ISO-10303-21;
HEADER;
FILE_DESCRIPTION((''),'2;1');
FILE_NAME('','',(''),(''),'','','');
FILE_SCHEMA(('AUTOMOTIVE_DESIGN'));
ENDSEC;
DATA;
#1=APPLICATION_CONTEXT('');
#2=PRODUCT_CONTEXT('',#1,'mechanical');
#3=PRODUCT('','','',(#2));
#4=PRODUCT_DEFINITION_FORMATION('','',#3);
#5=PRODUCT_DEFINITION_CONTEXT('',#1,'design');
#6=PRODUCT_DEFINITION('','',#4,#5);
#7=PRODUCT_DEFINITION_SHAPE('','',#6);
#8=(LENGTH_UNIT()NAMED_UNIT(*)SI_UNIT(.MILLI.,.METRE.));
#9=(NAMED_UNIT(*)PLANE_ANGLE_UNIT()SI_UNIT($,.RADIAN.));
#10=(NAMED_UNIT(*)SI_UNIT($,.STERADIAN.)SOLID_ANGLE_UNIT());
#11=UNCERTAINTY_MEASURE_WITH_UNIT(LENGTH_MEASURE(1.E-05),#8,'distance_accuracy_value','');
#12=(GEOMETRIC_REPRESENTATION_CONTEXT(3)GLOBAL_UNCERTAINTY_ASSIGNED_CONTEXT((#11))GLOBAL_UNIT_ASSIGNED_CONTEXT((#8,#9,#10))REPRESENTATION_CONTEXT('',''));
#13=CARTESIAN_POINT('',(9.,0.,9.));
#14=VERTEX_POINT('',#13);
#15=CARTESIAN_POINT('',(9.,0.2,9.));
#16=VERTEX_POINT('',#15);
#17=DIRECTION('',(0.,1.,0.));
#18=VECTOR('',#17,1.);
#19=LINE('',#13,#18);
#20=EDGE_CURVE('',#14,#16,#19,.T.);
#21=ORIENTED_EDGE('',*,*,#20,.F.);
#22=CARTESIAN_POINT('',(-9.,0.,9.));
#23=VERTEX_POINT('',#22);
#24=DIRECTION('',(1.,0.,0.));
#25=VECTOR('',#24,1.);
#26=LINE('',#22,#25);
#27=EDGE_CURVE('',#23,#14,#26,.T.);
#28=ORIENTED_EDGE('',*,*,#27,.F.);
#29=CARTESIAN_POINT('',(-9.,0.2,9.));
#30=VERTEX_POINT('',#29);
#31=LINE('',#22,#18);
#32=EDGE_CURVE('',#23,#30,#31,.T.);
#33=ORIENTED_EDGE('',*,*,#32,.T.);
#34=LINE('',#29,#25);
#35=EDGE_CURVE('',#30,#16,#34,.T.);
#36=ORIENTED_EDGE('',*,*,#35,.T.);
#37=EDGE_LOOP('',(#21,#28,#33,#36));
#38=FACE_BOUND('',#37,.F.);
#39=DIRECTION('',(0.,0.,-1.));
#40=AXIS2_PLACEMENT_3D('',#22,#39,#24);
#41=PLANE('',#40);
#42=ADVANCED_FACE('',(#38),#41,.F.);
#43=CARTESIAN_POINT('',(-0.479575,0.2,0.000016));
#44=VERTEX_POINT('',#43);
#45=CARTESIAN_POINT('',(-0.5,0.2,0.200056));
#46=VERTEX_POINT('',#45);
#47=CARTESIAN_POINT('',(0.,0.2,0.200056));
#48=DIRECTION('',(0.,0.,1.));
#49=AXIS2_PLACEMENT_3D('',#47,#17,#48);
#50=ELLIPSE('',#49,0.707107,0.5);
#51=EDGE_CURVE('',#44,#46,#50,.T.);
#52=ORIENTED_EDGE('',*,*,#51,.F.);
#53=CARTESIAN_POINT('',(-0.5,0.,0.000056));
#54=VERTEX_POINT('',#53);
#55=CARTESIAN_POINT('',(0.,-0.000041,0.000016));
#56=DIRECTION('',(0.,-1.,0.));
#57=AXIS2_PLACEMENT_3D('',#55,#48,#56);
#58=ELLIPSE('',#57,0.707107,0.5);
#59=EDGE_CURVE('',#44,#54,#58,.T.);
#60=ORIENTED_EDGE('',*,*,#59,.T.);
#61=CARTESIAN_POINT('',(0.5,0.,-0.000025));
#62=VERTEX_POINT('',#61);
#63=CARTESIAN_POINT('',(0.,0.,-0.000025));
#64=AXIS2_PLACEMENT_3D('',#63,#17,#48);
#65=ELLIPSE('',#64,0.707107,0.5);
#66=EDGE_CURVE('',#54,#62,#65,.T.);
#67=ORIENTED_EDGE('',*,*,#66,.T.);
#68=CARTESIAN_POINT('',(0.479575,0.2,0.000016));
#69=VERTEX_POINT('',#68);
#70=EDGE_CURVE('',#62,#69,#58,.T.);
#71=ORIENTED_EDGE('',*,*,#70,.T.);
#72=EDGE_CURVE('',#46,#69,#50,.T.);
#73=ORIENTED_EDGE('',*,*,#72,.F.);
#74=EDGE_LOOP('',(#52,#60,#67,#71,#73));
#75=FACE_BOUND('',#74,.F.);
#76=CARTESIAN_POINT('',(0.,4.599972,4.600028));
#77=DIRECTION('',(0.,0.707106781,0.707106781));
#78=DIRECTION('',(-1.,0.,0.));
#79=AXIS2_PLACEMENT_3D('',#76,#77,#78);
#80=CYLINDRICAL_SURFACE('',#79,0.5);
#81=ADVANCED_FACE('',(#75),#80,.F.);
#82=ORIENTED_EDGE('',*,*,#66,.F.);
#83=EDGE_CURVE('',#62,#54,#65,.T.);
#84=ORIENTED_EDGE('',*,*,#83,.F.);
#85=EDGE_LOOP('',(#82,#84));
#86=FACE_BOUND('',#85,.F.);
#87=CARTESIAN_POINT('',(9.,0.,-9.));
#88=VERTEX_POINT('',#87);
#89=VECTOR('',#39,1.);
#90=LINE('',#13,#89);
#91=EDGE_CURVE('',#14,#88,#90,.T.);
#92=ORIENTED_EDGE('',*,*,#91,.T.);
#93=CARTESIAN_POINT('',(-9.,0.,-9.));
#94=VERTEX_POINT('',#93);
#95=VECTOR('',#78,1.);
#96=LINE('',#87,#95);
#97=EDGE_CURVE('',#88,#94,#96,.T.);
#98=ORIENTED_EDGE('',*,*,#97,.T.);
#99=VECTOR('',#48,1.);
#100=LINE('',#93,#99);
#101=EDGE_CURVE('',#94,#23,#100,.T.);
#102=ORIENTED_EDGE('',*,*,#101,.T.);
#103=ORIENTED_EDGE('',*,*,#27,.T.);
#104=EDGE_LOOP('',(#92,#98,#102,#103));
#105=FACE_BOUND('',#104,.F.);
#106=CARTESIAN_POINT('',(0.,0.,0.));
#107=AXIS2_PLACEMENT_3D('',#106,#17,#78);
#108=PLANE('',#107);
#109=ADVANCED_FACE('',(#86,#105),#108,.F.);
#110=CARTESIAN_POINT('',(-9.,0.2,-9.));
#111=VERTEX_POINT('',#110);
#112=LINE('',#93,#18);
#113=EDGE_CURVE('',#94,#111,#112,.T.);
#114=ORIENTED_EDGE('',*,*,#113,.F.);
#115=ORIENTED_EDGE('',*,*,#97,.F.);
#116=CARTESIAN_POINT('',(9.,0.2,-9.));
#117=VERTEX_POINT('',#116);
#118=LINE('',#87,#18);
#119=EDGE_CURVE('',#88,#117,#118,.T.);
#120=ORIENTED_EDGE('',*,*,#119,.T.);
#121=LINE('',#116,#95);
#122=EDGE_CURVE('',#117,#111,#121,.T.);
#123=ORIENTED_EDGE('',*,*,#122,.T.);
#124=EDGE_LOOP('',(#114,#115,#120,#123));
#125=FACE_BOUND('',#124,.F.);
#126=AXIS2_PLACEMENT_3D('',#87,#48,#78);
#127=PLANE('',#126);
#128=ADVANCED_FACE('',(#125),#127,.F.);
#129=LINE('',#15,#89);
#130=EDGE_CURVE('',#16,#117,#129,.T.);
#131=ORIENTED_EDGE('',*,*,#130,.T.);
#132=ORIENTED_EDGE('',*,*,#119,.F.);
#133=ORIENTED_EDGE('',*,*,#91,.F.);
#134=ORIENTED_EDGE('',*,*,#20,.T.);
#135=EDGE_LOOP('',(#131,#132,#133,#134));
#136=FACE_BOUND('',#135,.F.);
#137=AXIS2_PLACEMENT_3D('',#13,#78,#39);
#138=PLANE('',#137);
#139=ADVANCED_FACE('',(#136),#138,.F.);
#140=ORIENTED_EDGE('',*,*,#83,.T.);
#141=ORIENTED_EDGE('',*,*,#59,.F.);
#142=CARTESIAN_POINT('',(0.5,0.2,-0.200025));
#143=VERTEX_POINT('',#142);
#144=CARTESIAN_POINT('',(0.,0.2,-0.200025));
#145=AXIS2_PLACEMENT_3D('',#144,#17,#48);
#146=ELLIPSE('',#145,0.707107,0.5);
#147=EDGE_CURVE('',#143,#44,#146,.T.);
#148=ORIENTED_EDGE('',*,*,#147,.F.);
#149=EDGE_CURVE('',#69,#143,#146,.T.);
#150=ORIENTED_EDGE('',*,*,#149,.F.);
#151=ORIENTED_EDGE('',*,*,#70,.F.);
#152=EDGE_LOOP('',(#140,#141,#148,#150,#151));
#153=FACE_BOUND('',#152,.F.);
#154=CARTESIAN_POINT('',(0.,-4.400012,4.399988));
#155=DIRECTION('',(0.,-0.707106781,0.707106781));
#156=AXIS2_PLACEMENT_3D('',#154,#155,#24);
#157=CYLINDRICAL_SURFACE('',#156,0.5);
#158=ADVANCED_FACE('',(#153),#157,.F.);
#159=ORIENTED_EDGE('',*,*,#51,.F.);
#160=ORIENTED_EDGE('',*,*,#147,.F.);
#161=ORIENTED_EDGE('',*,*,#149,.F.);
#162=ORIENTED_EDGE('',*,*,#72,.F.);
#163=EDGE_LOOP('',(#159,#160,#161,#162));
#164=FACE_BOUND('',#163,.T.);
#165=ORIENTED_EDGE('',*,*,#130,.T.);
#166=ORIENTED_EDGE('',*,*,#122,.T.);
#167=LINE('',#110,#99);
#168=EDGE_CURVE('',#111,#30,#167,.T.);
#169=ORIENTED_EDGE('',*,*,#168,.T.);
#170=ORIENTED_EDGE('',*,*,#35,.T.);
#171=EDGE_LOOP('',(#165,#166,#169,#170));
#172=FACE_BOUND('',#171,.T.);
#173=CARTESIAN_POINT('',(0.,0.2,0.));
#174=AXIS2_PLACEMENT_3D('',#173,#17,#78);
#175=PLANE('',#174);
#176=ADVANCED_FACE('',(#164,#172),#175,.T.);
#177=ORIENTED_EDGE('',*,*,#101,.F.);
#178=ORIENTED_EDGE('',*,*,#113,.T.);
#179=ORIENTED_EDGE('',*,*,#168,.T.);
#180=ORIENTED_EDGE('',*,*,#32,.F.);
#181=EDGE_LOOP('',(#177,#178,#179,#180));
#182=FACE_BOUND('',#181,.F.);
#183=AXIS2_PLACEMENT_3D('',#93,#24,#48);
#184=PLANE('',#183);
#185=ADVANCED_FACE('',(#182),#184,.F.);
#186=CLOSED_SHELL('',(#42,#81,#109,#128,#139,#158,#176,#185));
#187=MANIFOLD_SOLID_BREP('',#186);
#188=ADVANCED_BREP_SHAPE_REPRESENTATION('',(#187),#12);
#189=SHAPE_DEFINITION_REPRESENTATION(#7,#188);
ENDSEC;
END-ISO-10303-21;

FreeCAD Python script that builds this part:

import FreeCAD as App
import Part
import Sketcher
from FreeCAD import Vector


def add_polygon(sketch, points):
    """Adds a closed chain of lines whose ends are joined by coincident constraints."""
    first, n = sketch.GeometryCount, len(points)
    for a, b in zip(points, points[1:] + points[:1]):
        sketch.addGeometry(Part.LineSegment(App.Vector(*a, 0), App.Vector(*b, 0)), False)
    for i in range(n):
        sketch.addConstraint(Sketcher.Constraint("Coincident", first + i, 2, first + (i + 1) % n, 1))

doc = App.newDocument("Part")
body = doc.addObject("PartDesign::Body", "Body")

# Sketch on XZ plane
sketch1 = body.newObject("Sketcher::SketchObject", "Sketch")
sketch1.AttachmentSupport = (doc.getObject("XZ_Plane"), [""])
sketch1.MapMode = "FlatFace"
add_polygon(sketch1, [(9, 9), (9, -9), (-9, -9), (-9, 9)])  # lines 0-3
sketch1.addConstraint([
    Sketcher.Constraint("Vertical", 0),
    Sketcher.Constraint("Horizontal", 1),
    Sketcher.Constraint("Vertical", 2),
    Sketcher.Constraint("Horizontal", 3),
    Sketcher.Constraint("Symmetric", 0, 2, 2, 2, -1, 1),
    Sketcher.Constraint("Equal", 3, 0),
    Sketcher.Constraint("DistanceX", 1, 2, 1, 1, 18.0),
])
pad1 = body.newObject("PartDesign::Pad", "Pad")
pad1.Profile = sketch1
pad1.Length = 0.2
pad1.Reversed = True

# Sketch on an angled plane
sketch2 = body.newObject("Sketcher::SketchObject", "Sketch001")
sketch2.Placement = App.Placement(Vector(-9, 0.2, 9), App.Rotation(Vector(1, 0, 0), Vector(0, 0.707106781, 0.707106781), Vector(0, -0.707106781, 0.707106781), "ZXY"))
sketch2.addGeometry(Part.Circle(Vector(9, -6.5, 0), Vector(0, 0, 1), 0.5), False)
sketch2.addConstraint([
    Sketcher.Constraint("Diameter", 0, 1.0),
    Sketcher.Constraint("DistanceX", -1, 1, 0, 3, 9.0),
    Sketcher.Constraint("DistanceY", 0, 3, -1, 1, 6.5054),
])
pocket1 = body.newObject("PartDesign::Pocket", "Pocket")
pocket1.Profile = sketch2
pocket1.Type = "ThroughAll"

# Sketch on an angled plane
sketch3 = body.newObject("Sketcher::SketchObject", "Sketch002")
sketch3.Placement = App.Placement(Vector(-9, 0.2, 9), App.Rotation(Vector(-1, 0, 0), Vector(0, -0.707106781, 0.707106781), Vector(0, 0.707106781, 0.707106781), "ZXY"))
sketch3.addGeometry(Part.Circle(Vector(-9, -6.2, 0), Vector(0, 0, 1), 0.5), False)
sketch3.addConstraint([
    Sketcher.Constraint("Diameter", 0, 1.0),
    Sketcher.Constraint("DistanceX", 0, 3, -1, 1, 9.0),
    Sketcher.Constraint("DistanceY", 0, 3, -1, 1, 6.2225),
])
pocket2 = body.newObject("PartDesign::Pocket", "Pocket001")
pocket2.Profile = sketch3
pocket2.Type = "ThroughAll"

doc.recompute()
